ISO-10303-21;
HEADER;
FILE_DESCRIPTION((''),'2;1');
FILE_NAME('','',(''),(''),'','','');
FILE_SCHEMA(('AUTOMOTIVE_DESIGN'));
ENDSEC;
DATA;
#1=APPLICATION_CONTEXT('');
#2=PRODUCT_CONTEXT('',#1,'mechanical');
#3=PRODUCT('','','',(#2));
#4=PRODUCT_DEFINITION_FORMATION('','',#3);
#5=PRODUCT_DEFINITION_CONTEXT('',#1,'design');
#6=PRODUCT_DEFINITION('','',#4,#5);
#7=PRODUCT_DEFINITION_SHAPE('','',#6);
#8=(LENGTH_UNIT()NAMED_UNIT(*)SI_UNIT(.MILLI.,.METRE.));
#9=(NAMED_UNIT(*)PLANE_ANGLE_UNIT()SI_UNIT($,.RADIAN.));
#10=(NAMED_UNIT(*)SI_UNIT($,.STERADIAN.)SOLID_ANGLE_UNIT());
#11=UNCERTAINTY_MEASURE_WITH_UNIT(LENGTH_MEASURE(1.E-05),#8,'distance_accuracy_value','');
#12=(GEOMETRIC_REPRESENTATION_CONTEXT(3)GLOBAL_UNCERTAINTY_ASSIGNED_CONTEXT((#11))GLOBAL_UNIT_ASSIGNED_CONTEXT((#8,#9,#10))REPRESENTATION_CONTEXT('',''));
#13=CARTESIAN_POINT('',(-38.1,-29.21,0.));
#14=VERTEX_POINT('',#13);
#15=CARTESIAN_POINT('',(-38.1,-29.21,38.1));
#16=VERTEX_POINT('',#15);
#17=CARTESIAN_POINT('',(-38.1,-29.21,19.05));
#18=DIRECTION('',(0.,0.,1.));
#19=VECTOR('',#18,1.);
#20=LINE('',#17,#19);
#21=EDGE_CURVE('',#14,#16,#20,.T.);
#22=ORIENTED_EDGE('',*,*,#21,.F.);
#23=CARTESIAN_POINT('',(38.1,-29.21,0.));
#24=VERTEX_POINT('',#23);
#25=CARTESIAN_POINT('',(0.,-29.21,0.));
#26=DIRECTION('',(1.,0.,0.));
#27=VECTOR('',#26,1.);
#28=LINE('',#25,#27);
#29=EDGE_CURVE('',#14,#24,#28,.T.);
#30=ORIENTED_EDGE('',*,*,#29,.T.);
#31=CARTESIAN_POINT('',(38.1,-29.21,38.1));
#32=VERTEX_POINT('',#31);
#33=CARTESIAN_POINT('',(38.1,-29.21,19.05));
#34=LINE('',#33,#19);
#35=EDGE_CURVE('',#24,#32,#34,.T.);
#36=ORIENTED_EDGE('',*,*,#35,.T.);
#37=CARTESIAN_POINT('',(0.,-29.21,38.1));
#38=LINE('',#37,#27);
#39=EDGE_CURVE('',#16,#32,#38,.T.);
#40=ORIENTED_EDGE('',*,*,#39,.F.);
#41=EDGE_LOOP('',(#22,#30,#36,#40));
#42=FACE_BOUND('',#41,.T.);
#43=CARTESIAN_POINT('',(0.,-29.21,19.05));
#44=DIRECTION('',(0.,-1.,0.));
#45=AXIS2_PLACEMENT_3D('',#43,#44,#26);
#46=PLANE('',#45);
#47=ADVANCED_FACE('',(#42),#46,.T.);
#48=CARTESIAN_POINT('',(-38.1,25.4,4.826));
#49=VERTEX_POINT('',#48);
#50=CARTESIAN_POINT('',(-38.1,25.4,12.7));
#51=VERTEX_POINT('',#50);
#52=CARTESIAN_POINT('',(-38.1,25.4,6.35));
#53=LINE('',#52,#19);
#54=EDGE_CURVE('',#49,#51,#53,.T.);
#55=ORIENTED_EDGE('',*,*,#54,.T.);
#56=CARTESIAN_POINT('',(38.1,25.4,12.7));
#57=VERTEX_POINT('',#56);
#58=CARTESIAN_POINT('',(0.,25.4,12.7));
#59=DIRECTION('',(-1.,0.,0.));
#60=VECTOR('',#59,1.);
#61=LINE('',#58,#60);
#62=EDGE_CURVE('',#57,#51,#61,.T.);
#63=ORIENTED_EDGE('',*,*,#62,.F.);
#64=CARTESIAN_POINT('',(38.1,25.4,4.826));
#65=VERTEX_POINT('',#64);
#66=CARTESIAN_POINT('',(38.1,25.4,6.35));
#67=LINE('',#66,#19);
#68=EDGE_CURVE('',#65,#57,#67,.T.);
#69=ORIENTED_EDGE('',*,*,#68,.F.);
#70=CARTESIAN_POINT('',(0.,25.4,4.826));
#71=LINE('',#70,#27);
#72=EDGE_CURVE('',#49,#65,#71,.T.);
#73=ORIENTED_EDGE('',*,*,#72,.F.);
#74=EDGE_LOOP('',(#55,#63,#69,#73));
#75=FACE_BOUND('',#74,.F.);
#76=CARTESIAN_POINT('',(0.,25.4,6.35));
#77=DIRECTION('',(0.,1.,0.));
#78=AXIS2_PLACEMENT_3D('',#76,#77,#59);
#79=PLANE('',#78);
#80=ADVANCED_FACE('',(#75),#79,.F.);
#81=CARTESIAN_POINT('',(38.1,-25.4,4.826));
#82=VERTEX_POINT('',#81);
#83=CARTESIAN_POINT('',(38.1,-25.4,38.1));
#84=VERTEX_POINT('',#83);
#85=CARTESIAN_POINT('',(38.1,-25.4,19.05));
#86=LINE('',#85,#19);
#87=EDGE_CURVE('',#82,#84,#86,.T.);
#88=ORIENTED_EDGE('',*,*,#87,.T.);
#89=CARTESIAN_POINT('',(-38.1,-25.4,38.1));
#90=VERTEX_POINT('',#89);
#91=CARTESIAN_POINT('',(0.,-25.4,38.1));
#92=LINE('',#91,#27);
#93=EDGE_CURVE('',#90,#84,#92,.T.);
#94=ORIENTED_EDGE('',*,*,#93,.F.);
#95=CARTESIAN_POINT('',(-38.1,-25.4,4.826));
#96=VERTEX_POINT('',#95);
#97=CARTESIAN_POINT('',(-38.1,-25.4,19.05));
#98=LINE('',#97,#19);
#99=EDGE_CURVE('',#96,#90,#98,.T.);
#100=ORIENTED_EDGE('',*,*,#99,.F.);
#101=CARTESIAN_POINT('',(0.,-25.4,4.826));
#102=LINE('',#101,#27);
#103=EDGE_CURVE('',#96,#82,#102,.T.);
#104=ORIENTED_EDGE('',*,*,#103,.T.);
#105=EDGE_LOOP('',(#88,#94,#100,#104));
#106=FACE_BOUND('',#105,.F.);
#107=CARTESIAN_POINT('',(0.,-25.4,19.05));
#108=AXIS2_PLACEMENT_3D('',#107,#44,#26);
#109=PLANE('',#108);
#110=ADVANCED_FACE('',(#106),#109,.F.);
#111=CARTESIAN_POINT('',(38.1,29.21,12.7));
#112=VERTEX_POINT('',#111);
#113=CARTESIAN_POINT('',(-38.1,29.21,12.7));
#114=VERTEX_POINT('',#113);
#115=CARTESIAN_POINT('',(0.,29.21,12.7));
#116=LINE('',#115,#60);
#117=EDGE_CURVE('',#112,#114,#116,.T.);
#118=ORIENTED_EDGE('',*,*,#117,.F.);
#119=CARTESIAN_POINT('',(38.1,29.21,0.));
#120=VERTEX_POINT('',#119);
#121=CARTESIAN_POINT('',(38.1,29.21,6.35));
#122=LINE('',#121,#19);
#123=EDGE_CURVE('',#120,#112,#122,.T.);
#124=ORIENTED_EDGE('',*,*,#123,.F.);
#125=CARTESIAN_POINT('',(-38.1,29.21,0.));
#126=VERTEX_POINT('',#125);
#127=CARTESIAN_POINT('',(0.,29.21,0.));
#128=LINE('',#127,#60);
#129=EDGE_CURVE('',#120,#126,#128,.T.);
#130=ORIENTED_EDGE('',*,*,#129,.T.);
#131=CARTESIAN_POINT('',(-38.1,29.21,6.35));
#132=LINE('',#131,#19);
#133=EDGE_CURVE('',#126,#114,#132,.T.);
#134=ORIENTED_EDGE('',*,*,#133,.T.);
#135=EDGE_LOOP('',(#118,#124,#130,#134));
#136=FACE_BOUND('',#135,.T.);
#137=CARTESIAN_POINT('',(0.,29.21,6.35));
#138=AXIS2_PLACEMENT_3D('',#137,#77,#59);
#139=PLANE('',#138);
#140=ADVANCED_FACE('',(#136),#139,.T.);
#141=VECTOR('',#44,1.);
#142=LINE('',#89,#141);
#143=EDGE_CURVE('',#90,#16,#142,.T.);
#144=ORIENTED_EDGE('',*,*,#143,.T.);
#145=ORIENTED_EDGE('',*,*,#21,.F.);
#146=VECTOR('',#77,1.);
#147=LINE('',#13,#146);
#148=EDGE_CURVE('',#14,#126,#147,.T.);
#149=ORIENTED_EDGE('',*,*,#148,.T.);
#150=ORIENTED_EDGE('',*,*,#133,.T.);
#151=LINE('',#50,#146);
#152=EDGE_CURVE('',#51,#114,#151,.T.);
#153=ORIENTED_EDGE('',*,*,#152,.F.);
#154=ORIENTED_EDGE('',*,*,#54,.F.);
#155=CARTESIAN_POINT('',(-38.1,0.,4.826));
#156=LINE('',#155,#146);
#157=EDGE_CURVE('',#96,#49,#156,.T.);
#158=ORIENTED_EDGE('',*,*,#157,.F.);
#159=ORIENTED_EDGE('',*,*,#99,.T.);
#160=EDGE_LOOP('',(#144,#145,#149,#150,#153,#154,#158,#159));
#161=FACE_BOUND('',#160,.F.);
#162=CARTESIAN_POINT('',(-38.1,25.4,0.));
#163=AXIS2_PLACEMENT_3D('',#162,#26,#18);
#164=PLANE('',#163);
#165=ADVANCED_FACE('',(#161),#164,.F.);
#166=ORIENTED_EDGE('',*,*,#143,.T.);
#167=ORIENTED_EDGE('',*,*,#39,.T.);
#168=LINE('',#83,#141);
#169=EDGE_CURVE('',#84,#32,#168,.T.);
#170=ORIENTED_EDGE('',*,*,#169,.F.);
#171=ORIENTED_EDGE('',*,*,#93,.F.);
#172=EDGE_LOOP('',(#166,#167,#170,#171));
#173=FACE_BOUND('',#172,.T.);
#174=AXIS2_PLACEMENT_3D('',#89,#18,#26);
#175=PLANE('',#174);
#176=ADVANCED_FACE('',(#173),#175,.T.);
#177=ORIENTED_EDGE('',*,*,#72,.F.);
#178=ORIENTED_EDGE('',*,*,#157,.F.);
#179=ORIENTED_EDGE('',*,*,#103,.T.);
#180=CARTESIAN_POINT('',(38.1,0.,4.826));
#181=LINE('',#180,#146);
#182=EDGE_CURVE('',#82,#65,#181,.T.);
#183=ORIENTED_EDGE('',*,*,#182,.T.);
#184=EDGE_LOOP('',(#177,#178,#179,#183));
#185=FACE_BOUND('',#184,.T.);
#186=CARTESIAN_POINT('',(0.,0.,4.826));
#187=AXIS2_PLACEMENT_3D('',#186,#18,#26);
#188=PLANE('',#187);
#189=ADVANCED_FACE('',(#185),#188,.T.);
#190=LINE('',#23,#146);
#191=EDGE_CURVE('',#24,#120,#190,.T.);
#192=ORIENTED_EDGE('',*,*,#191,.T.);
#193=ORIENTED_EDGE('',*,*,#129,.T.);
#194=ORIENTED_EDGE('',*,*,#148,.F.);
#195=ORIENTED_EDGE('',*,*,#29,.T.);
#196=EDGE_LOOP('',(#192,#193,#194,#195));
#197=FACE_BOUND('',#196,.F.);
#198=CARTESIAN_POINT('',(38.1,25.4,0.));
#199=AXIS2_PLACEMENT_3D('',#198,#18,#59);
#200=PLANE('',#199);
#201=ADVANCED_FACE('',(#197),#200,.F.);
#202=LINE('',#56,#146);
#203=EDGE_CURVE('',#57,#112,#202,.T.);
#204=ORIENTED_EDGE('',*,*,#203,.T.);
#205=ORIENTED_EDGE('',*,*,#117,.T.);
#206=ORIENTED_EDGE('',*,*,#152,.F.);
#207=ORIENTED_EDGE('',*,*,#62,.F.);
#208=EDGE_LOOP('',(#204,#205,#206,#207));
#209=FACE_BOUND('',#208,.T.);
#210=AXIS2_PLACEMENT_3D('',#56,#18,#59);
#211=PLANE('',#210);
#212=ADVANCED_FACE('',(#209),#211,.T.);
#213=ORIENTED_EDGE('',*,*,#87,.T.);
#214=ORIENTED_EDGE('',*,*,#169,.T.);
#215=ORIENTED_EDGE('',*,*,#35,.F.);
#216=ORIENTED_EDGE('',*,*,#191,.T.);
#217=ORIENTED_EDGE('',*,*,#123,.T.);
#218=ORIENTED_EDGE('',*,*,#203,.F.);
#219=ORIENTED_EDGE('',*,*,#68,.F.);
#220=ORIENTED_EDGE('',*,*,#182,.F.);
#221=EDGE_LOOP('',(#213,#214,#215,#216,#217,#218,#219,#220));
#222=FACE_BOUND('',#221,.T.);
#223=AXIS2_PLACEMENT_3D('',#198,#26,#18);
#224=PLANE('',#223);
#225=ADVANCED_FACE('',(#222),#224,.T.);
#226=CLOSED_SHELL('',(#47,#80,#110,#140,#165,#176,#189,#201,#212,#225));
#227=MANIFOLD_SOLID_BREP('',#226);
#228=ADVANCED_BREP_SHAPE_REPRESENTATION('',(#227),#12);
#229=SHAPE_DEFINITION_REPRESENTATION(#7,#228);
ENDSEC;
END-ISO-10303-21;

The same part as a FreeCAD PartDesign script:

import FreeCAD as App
import Part
import Sketcher

V = App.Vector
Q = App.Units.Quantity

doc = App.newDocument("Part")
params = doc.addObject("Spreadsheet::Sheet", "Params")
for row, (alias, value) in enumerate([
    ("sketch1_width", "3 in"),
    ("sketch1_height", "2 in"),
    ("pad1_length", "0.19 in"),
    ("sketch2_width", "3 in"),
    ("sketch2_height", "1.5 in"),
    ("pad2_length", "0.15 in"),
    ("sketch3_width", "3 in"),
    ("sketch3_height", "0.5 in"),
    ("pad3_length", "0.15 in"),
], start=1):
    params.set(f"A{row}", alias)
    params.set(f"B{row}", "=" + value)
    params.setAlias(f"B{row}", alias)

body = doc.addObject("PartDesign::Body", "Body")

sketch1 = body.newObject("Sketcher::SketchObject", "Sketch")
sketch1.AttachmentSupport = (doc.getObject("XY_Plane"), [""])
sketch1.MapMode = "FlatFace"
sketch1.addGeometry([
    Part.LineSegment(V(-38, 25, 0), V(-38, -25, 0)),
    Part.LineSegment(V(-38, -25, 0), V(38, -25, 0)),
    Part.LineSegment(V(38, -25, 0), V(38, 25, 0)),
    Part.LineSegment(V(38, 25, 0), V(-38, 25, 0)),
], False)
sketch1.addConstraint([
    Sketcher.Constraint("Coincident", 0, 2, 1, 1),
    Sketcher.Constraint("Coincident", 1, 2, 2, 1),
    Sketcher.Constraint("Coincident", 2, 2, 3, 1),
    Sketcher.Constraint("Coincident", 3, 2, 0, 1),
    Sketcher.Constraint("Vertical", 0),
    Sketcher.Constraint("Horizontal", 1),
    Sketcher.Constraint("Vertical", 2),
    Sketcher.Constraint("Horizontal", 3),
    Sketcher.Constraint("Symmetric", 0, 2, 2, 2, -1, 1),
    Sketcher.Constraint("DistanceX", 1, 1, 1, 2, Q("3 in")),
    Sketcher.Constraint("DistanceY", 0, 2, 0, 1, Q("2 in")),
])
sketch1.setExpression("Constraints[9]", "Params.sketch1_width")
sketch1.setExpression("Constraints[10]", "Params.sketch1_height")
pad1 = body.newObject("PartDesign::Pad", "Pad")
pad1.Profile = sketch1
pad1.setExpression("Length", "Params.pad1_length")

sketch2 = body.newObject("Sketcher::SketchObject", "Sketch001")
sketch2.AttachmentSupport = (doc.getObject("XZ_Plane"), [""])
sketch2.MapMode = "FlatFace"
sketch2.AttachmentOffset = App.Placement(V(0, 0, 1 * 25.4), App.Rotation())
sketch2.addGeometry([
    Part.LineSegment(V(-38, 38, 0), V(-38, 0, 0)),
    Part.LineSegment(V(-38, 0, 0), V(38, 0, 0)),
    Part.LineSegment(V(38, 0, 0), V(38, 38, 0)),
    Part.LineSegment(V(38, 38, 0), V(-38, 38, 0)),
], False)
sketch2.addConstraint([
    Sketcher.Constraint("Coincident", 0, 2, 1, 1),
    Sketcher.Constraint("Coincident", 1, 2, 2, 1),
    Sketcher.Constraint("Coincident", 2, 2, 3, 1),
    Sketcher.Constraint("Coincident", 3, 2, 0, 1),
    Sketcher.Constraint("Vertical", 0),
    Sketcher.Constraint("Horizontal", 1),
    Sketcher.Constraint("Vertical", 2),
    Sketcher.Constraint("Horizontal", 3),
    Sketcher.Constraint("Symmetric", 0, 2, 1, 2, -1, 1),
    Sketcher.Constraint("DistanceX", 1, 1, 1, 2, Q("3 in")),
    Sketcher.Constraint("DistanceY", 0, 2, 0, 1, Q("1.5 in")),
])
sketch2.setExpression("Constraints[9]", "Params.sketch2_width")
sketch2.setExpression("Constraints[10]", "Params.sketch2_height")
pad2 = body.newObject("PartDesign::Pad", "Pad001")
pad2.Profile = sketch2
pad2.setExpression("Length", "Params.pad2_length")

sketch3 = body.newObject("Sketcher::SketchObject", "Sketch002")
sketch3.AttachmentSupport = (doc.getObject("XZ_Plane"), [""])
sketch3.MapMode = "FlatFace"
sketch3.AttachmentOffset = App.Placement(V(0, 0, -1 * 25.4), App.Rotation())
sketch3.addGeometry([
    Part.LineSegment(V(38, 13, 0), V(38, 0, 0)),
    Part.LineSegment(V(38, 0, 0), V(-38, 0, 0)),
    Part.LineSegment(V(-38, 0, 0), V(-38, 13, 0)),
    Part.LineSegment(V(-38, 13, 0), V(38, 13, 0)),
], False)
sketch3.addConstraint([
    Sketcher.Constraint("Coincident", 0, 2, 1, 1),
    Sketcher.Constraint("Coincident", 1, 2, 2, 1),
    Sketcher.Constraint("Coincident", 2, 2, 3, 1),
    Sketcher.Constraint("Coincident", 3, 2, 0, 1),
    Sketcher.Constraint("Vertical", 0),
    Sketcher.Constraint("Horizontal", 1),
    Sketcher.Constraint("Vertical", 2),
    Sketcher.Constraint("Horizontal", 3),
    Sketcher.Constraint("Symmetric", 0, 2, 1, 2, -1, 1),
    Sketcher.Constraint("DistanceX", 1, 2, 1, 1, Q("3 in")),
    Sketcher.Constraint("DistanceY", 0, 2, 0, 1, Q("0.5 in")),
])
sketch3.setExpression("Constraints[9]", "Params.sketch3_width")
sketch3.setExpression("Constraints[10]", "Params.sketch3_height")
pad3 = body.newObject("PartDesign::Pad", "Pad002")
pad3.Profile = sketch3
pad3.setExpression("Length", "Params.pad3_length")
pad3.Reversed = True

doc.recompute()
